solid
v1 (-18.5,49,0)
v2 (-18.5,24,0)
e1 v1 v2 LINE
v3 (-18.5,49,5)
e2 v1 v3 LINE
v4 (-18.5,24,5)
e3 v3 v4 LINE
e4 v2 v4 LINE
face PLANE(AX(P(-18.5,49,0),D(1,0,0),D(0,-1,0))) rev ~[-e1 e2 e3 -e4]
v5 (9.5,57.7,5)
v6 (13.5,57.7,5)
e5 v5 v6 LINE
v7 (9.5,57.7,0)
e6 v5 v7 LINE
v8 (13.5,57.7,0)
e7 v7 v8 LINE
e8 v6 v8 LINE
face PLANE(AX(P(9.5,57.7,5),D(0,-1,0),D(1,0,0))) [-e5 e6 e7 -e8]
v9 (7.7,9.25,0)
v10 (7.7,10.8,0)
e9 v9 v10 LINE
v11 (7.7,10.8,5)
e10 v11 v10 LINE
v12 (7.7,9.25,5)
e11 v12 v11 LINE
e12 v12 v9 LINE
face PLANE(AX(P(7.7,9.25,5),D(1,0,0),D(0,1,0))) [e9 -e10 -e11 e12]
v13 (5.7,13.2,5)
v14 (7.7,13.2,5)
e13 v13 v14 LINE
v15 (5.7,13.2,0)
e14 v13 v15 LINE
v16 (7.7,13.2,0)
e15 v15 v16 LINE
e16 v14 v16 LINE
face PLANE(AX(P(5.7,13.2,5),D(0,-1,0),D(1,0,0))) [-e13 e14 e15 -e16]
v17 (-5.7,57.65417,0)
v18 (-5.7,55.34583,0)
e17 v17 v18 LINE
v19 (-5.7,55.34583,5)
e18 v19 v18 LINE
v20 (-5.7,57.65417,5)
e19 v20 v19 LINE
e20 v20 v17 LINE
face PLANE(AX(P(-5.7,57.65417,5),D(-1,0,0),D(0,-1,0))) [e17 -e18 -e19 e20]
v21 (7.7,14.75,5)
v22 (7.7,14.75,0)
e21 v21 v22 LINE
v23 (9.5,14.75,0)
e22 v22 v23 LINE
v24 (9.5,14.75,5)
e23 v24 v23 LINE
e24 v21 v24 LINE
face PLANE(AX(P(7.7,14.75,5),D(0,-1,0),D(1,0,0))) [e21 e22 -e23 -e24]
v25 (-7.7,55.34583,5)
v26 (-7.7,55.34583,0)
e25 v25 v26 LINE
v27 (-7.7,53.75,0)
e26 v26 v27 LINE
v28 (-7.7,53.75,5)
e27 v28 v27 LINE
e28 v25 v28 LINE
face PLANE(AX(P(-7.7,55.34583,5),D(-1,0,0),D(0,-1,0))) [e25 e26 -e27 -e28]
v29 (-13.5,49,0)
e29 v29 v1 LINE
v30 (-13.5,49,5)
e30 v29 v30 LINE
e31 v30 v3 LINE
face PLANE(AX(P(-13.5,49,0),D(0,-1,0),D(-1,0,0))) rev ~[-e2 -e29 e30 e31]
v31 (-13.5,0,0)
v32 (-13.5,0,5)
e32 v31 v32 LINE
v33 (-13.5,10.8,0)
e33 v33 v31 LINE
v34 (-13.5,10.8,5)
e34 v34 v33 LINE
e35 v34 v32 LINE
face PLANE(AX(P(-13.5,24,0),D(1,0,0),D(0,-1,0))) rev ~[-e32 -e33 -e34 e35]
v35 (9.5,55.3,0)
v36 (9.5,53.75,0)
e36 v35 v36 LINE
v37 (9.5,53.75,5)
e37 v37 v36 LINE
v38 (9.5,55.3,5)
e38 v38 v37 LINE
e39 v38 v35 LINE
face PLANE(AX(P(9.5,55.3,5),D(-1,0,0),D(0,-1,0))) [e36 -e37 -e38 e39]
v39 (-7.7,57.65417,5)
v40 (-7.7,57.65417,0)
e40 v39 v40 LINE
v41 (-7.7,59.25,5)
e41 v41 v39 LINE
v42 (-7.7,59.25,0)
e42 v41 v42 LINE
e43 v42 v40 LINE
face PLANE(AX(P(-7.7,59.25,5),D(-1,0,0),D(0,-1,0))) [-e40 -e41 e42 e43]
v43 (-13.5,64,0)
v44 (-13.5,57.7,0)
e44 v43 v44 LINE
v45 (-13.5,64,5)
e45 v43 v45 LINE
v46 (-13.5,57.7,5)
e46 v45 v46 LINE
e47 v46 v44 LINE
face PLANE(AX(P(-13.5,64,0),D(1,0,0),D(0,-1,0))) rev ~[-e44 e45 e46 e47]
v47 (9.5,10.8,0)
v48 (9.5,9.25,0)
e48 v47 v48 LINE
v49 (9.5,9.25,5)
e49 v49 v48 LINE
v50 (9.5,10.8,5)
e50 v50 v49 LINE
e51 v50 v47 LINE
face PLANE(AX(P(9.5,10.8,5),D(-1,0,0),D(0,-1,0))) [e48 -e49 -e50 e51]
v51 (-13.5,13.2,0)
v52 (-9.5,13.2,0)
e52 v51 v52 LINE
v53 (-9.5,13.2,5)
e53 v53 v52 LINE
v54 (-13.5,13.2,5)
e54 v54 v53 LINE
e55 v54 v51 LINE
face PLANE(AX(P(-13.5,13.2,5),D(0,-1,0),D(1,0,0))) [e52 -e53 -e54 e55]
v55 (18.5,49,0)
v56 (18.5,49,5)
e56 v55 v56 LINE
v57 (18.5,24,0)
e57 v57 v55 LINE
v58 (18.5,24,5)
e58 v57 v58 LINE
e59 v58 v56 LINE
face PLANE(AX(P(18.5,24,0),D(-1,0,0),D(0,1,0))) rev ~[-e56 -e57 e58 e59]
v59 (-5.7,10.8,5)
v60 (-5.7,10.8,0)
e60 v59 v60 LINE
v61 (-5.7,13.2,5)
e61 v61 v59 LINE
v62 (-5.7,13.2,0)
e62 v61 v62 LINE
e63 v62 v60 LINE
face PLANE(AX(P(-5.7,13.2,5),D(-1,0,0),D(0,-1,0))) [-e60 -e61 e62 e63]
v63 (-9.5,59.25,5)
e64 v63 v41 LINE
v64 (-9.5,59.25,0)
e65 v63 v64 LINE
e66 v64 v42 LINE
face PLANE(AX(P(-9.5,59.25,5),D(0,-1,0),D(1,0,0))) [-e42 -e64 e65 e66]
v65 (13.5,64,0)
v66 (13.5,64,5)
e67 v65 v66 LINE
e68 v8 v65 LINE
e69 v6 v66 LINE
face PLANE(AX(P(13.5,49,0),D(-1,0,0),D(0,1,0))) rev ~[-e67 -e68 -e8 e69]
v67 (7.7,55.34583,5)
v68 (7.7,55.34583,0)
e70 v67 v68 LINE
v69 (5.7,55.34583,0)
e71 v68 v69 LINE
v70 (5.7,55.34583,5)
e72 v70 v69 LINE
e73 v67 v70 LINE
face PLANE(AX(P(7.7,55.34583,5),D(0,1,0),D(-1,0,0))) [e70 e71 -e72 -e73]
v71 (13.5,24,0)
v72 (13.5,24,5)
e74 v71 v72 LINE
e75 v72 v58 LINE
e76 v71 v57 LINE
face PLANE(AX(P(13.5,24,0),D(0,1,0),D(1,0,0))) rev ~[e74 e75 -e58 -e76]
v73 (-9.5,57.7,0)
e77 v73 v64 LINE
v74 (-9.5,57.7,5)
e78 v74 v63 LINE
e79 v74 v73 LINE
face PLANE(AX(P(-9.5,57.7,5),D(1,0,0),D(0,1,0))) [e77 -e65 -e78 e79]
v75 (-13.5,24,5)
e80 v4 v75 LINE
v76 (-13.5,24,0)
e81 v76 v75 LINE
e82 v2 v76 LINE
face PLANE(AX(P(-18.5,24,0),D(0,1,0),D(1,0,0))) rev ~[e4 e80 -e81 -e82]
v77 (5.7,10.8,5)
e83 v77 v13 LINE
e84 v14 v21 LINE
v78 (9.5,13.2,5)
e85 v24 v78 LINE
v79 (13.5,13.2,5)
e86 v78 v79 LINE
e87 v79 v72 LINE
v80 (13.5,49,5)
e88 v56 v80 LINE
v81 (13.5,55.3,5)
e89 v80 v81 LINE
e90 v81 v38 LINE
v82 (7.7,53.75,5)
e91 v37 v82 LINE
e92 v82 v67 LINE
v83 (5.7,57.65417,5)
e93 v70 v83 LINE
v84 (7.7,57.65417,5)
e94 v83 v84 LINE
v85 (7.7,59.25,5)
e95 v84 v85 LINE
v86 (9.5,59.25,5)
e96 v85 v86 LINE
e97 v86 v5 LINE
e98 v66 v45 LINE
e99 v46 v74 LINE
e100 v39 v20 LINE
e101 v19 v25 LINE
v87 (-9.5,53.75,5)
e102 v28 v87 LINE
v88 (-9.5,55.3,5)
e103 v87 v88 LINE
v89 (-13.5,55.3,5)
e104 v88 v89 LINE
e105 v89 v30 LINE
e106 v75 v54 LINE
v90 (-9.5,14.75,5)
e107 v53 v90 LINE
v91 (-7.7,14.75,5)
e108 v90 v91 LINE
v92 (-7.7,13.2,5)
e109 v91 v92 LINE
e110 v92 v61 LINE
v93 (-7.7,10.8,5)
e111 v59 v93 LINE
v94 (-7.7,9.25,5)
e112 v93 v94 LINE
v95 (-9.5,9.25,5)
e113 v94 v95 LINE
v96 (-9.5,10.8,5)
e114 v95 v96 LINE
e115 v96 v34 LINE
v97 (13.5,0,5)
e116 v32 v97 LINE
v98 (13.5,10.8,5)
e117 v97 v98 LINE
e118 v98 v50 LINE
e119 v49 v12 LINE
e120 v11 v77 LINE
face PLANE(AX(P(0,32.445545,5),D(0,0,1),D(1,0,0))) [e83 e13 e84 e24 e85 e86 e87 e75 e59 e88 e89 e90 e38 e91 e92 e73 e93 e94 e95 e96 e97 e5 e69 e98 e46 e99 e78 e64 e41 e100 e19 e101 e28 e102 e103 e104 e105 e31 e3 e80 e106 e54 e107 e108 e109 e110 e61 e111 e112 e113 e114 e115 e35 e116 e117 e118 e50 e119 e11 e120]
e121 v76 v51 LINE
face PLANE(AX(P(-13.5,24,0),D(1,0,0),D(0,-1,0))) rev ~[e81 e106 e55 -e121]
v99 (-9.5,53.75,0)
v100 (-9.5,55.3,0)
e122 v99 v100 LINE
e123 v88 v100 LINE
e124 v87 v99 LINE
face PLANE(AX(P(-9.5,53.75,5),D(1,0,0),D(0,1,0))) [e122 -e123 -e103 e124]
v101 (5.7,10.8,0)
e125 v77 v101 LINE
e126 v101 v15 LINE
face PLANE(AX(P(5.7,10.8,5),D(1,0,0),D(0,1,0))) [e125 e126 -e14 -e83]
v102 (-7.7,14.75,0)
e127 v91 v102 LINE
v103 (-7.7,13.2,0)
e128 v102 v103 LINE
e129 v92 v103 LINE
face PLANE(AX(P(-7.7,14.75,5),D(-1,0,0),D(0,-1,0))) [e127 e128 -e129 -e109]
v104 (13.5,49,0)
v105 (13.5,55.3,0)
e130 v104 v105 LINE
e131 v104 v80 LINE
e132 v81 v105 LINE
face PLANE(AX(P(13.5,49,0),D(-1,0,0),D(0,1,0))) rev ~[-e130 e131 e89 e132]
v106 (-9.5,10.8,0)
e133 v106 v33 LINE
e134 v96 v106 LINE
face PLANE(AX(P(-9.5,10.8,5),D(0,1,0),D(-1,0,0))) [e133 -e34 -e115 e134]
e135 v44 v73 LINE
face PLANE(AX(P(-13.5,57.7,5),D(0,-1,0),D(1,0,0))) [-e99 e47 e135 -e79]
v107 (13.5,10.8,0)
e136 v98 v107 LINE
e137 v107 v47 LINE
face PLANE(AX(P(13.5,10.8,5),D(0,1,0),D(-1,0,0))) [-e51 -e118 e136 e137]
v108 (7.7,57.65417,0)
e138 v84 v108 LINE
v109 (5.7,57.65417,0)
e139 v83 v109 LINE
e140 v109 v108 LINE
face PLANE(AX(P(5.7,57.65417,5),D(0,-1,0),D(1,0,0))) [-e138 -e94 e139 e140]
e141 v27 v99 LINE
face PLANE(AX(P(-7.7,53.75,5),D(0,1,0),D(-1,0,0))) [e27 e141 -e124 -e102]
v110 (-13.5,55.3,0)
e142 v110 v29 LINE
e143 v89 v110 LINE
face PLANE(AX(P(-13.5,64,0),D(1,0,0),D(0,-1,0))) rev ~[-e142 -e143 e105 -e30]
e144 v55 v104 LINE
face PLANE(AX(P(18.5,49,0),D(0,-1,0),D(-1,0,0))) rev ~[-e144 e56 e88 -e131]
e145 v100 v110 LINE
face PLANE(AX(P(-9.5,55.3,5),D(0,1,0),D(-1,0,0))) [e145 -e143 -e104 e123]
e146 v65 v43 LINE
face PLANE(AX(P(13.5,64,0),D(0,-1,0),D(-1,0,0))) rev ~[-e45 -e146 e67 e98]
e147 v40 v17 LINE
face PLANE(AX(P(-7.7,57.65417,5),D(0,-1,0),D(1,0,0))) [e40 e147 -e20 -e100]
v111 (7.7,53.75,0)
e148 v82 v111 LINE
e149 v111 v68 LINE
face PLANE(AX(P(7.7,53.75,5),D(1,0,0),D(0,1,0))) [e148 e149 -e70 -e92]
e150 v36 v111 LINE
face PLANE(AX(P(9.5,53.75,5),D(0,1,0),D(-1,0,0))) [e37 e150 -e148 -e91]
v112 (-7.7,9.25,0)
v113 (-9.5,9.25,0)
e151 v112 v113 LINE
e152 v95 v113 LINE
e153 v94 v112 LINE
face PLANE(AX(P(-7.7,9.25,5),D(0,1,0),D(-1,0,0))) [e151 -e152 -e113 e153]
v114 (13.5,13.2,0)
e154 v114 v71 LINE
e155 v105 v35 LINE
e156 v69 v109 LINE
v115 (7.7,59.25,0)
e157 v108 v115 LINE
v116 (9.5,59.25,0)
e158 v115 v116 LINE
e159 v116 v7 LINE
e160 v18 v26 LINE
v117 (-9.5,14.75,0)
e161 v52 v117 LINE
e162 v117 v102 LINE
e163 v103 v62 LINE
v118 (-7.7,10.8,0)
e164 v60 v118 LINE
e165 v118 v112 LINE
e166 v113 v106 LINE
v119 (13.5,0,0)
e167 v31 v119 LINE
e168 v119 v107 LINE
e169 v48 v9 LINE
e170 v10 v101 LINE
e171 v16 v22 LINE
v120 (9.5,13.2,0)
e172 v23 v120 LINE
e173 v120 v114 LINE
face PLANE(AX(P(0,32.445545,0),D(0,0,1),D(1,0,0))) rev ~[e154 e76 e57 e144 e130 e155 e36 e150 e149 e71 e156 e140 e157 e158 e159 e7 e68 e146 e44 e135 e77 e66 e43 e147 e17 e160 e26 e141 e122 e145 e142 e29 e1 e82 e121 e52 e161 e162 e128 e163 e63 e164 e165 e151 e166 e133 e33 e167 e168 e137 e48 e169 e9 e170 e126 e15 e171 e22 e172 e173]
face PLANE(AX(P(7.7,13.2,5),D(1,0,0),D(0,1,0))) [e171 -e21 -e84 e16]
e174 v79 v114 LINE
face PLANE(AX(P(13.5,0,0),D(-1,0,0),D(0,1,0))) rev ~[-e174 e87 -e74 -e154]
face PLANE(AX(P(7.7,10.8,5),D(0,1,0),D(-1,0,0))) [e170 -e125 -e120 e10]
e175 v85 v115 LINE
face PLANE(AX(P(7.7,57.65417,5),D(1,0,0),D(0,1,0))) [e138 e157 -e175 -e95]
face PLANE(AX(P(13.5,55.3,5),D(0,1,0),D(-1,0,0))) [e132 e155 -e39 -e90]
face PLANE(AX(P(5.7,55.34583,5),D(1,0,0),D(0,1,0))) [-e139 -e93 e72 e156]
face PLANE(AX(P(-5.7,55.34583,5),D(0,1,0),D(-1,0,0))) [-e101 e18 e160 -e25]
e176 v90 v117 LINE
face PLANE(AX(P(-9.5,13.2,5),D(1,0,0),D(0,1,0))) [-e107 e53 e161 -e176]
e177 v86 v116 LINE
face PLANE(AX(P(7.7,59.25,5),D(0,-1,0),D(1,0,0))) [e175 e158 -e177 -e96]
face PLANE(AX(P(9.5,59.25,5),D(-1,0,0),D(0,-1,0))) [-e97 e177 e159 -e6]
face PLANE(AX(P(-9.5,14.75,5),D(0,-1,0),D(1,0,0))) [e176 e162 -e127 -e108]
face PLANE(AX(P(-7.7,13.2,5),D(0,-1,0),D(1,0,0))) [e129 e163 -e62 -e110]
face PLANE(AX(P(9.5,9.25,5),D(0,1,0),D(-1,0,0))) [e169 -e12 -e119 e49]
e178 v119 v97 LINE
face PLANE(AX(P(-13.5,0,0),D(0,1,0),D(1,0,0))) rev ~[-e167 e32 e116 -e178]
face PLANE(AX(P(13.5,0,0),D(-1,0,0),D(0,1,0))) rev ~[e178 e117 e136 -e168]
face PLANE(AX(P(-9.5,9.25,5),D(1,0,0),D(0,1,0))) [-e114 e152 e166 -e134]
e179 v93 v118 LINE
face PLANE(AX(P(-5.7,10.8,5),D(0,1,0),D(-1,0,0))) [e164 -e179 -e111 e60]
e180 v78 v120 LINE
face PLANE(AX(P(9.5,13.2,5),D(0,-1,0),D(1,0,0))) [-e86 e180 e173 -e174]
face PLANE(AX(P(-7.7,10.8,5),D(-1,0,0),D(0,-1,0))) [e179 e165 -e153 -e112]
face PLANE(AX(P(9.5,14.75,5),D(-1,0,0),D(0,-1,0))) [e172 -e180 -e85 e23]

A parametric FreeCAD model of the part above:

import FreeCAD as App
import Part
import Sketcher

V = App.Vector
Q = App.Units.Quantity


def add_polygon(sketch, points):
    """Adds a closed chain of lines whose ends are joined by coincident constraints."""
    first, n = sketch.GeometryCount, len(points)
    for a, b in zip(points, points[1:] + points[:1]):
        sketch.addGeometry(Part.LineSegment(App.Vector(*a, 0), App.Vector(*b, 0)), False)
    for i in range(n):
        sketch.addConstraint(Sketcher.Constraint("Coincident", first + i, 2, first + (i + 1) % n, 1))

doc = App.newDocument("Part")
body = doc.addObject("PartDesign::Body", "Body")

sketch1 = doc.addObject("Sketcher::SketchObject", "Sketch")
body.addObject(sketch1)
sketch1.AttachmentSupport = (doc.XY_Plane, [""])
sketch1.MapMode = "FlatFace"
add_polygon(sketch1, [(-13.5, 0), (13.5, 0), (13.5, 24), (18.5, 24), (18.5, 49), (13.5, 49), (13.5, 64), (-13.5, 64), (-13.5, 49), (-18.5, 49), (-18.5, 24), (-13.5, 24)])
sketch1.addConstraint(Sketcher.Constraint("Horizontal", 0))
sketch1.addConstraint(Sketcher.Constraint("Vertical", 1))
sketch1.addConstraint(Sketcher.Constraint("Horizontal", 2))
sketch1.addConstraint(Sketcher.Constraint("Vertical", 3))
sketch1.addConstraint(Sketcher.Constraint("Horizontal", 4))
sketch1.addConstraint(Sketcher.Constraint("Vertical", 5))
sketch1.addConstraint(Sketcher.Constraint("Horizontal", 6))
sketch1.addConstraint(Sketcher.Constraint("Vertical", 7))
sketch1.addConstraint(Sketcher.Constraint("Horizontal", 8))
sketch1.addConstraint(Sketcher.Constraint("Vertical", 9))
sketch1.addConstraint(Sketcher.Constraint("Horizontal", 10))
sketch1.addConstraint(Sketcher.Constraint("Vertical", 11))
sketch1.addConstraint(Sketcher.Constraint("Symmetric", 0, 2, 11, 2, -1, 1))
sketch1.addConstraint(Sketcher.Constraint("Symmetric", 4, 2, 7, 2, -2))
sketch1.addConstraint(Sketcher.Constraint("Symmetric", 2, 2, 9, 2, -2))
sketch1.addConstraint(Sketcher.Constraint("Vertical", 1, 2, 4, 2))
sketch1.addConstraint(Sketcher.Constraint("DistanceX", 0, 1, 0, 2, Q("27 mm")))
sketch1.addConstraint(Sketcher.Constraint("DistanceX", 2, 1, 2, 2, Q("5 mm")))
sketch1.addConstraint(Sketcher.Constraint("DistanceY", 1, 1, 1, 2, Q("24 mm")))
sketch1.addConstraint(Sketcher.Constraint("DistanceY", 3, 1, 3, 2, Q("25 mm")))
sketch1.addConstraint(Sketcher.Constraint("DistanceY", 5, 1, 5, 2, Q("15 mm")))
pad1 = doc.addObject("PartDesign::Pad", "Pad")
body.addObject(pad1)
pad1.Profile = sketch1
pad1.Length = 5

sketch2 = doc.addObject("Sketcher::SketchObject", "Sketch001")
body.addObject(sketch2)
sketch2.AttachmentSupport = (doc.XY_Plane, [""])
sketch2.MapMode = "FlatFace"
sketch2.AttachmentOffset = App.Placement(V(0, 0, 5), App.Rotation())
add_polygon(sketch2, [(-13.5, 57.7), (-13.5, 55.3), (-9.5, 55.3), (-9.5, 53.75), (-7.7, 53.75), (-7.7, 55.34583), (-5.7, 55.34583), (-5.7, 57.65417), (-7.7, 57.65417), (-7.7, 59.25), (-9.5, 59.25), (-9.5, 57.7)])
add_polygon(sketch2, [(13.5, 55.3), (13.5, 57.7), (9.5, 57.7), (9.5, 59.25), (7.7, 59.25), (7.7, 57.65417), (5.7, 57.65417), (5.7, 55.34583), (7.7, 55.34583), (7.7, 53.75), (9.5, 53.75), (9.5, 55.3)])
add_polygon(sketch2, [(-13.5, 13.2), (-13.5, 10.8), (-9.5, 10.8), (-9.5, 9.25), (-7.7, 9.25), (-7.7, 10.8), (-5.7, 10.8), (-5.7, 13.2), (-7.7, 13.2), (-7.7, 14.75), (-9.5, 14.75), (-9.5, 13.2)])
add_polygon(sketch2, [(9.5, 10.8), (13.5, 10.8), (13.5, 13.2), (9.5, 13.2), (9.5, 14.75), (7.7, 14.75), (7.7, 13.2), (5.7, 13.2), (5.7, 10.8), (7.7, 10.8), (7.7, 9.25), (9.5, 9.25)])
sketch2.addConstraint(Sketcher.Constraint("Vertical", 0))
sketch2.addConstraint(Sketcher.Constraint("Horizontal", 1))
sketch2.addConstraint(Sketcher.Constraint("Vertical", 2))
sketch2.addConstraint(Sketcher.Constraint("Horizontal", 3))
sketch2.addConstraint(Sketcher.Constraint("Vertical", 4))
sketch2.addConstraint(Sketcher.Constraint("Horizontal", 5))
sketch2.addConstraint(Sketcher.Constraint("Vertical", 6))
sketch2.addConstraint(Sketcher.Constraint("Horizontal", 7))
sketch2.addConstraint(Sketcher.Constraint("Vertical", 8))
sketch2.addConstraint(Sketcher.Constraint("Horizontal", 9))
sketch2.addConstraint(Sketcher.Constraint("Vertical", 10))
sketch2.addConstraint(Sketcher.Constraint("Horizontal", 11))
sketch2.addConstraint(Sketcher.Constraint("Vertical", 12))
sketch2.addConstraint(Sketcher.Constraint("Horizontal", 13))
sketch2.addConstraint(Sketcher.Constraint("Vertical", 14))
sketch2.addConstraint(Sketcher.Constraint("Horizontal", 15))
sketch2.addConstraint(Sketcher.Constraint("Vertical", 16))
sketch2.addConstraint(Sketcher.Constraint("Horizontal", 17))
sketch2.addConstraint(Sketcher.Constraint("Vertical", 18))
sketch2.addConstraint(Sketcher.Constraint("Horizontal", 19))
sketch2.addConstraint(Sketcher.Constraint("Vertical", 20))
sketch2.addConstraint(Sketcher.Constraint("Horizontal", 21))
sketch2.addConstraint(Sketcher.Constraint("Vertical", 22))
sketch2.addConstraint(Sketcher.Constraint("Horizontal", 23))
sketch2.addConstraint(Sketcher.Constraint("Vertical", 24))
sketch2.addConstraint(Sketcher.Constraint("Horizontal", 25))
sketch2.addConstraint(Sketcher.Constraint("Vertical", 26))
sketch2.addConstraint(Sketcher.Constraint("Horizontal", 27))
sketch2.addConstraint(Sketcher.Constraint("Vertical", 28))
sketch2.addConstraint(Sketcher.Constraint("Horizontal", 29))
sketch2.addConstraint(Sketcher.Constraint("Vertical", 30))
sketch2.addConstraint(Sketcher.Constraint("Horizontal", 31))
sketch2.addConstraint(Sketcher.Constraint("Vertical", 32))
sketch2.addConstraint(Sketcher.Constraint("Horizontal", 33))
sketch2.addConstraint(Sketcher.Constraint("Vertical", 34))
sketch2.addConstraint(Sketcher.Constraint("Horizontal", 35))
sketch2.addConstraint(Sketcher.Constraint("Horizontal", 36))
sketch2.addConstraint(Sketcher.Constraint("Vertical", 37))
sketch2.addConstraint(Sketcher.Constraint("Horizontal", 38))
sketch2.addConstraint(Sketcher.Constraint("Vertical", 39))
sketch2.addConstraint(Sketcher.Constraint("Horizontal", 40))
sketch2.addConstraint(Sketcher.Constraint("Vertical", 41))
sketch2.addConstraint(Sketcher.Constraint("Horizontal", 42))
sketch2.addConstraint(Sketcher.Constraint("Vertical", 43))
sketch2.addConstraint(Sketcher.Constraint("Horizontal", 44))
sketch2.addConstraint(Sketcher.Constraint("Vertical", 45))
sketch2.addConstraint(Sketcher.Constraint("Horizontal", 46))
sketch2.addConstraint(Sketcher.Constraint("Vertical", 47))
sketch2.addConstraint(Sketcher.Constraint("Symmetric", 11, 2, 12, 2, -2))
sketch2.addConstraint(Sketcher.Constraint("Symmetric", 9, 2, 14, 2, -2))
sketch2.addConstraint(Sketcher.Constraint("Symmetric", 7, 2, 16, 2, -2))
sketch2.addConstraint(Sketcher.Constraint("Symmetric", 5, 2, 18, 2, -2))
sketch2.addConstraint(Sketcher.Constraint("Symmetric", 3, 2, 20, 2, -2))
sketch2.addConstraint(Sketcher.Constraint("Symmetric", 1, 2, 22, 2, -2))
sketch2.addConstraint(Sketcher.Constraint("Symmetric", 24, 2, 36, 2, -2))
sketch2.addConstraint(Sketcher.Constraint("Symmetric", 34, 2, 38, 2, -2))
sketch2.addConstraint(Sketcher.Constraint("Symmetric", 32, 2, 40, 2, -2))
sketch2.addConstraint(Sketcher.Constraint("Symmetric", 30, 2, 42, 2, -2))
sketch2.addConstraint(Sketcher.Constraint("Symmetric", 28, 2, 44, 2, -2))
sketch2.addConstraint(Sketcher.Constraint("Symmetric", 26, 2, 46, 2, -2))
sketch2.addConstraint(Sketcher.Constraint("Horizontal", 25, 2, 28, 2))
sketch2.addConstraint(Sketcher.Constraint("Horizontal", 31, 2, 34, 2))
sketch2.addConstraint(Sketcher.Constraint("Vertical", 4, 2, 7, 2))
sketch2.addConstraint(Sketcher.Constraint("Vertical", 2, 2, 9, 2))
sketch2.addConstraint(Sketcher.Constraint("Vertical", 11, 2, 24, 2))
sketch2.addConstraint(Sketcher.Constraint("Vertical", 10, 2, 25, 2))
sketch2.addConstraint(Sketcher.Constraint("Vertical", 8, 2, 27, 2))
sketch2.addConstraint(Sketcher.Constraint("Vertical", 6, 2, 29, 2))
sketch2.addConstraint(Sketcher.Constraint("Vertical", 28, 2, 31, 2))
sketch2.addConstraint(Sketcher.Constraint("Vertical", 26, 2, 33, 2))
sketch2.addConstraint(Sketcher.Constraint("Equal", 4, 8))
sketch2.addConstraint(Sketcher.Constraint("Equal", 2, 10))
sketch2.addConstraint(Sketcher.Constraint("Equal", 12, 24))
sketch2.addConstraint(Sketcher.Constraint("Equal", 22, 26))
sketch2.addConstraint(Sketcher.Constraint("Equal", 28, 32))
sketch2.addConstraint(Sketcher.Constraint("DistanceX", 1, 1, 1, 2, Q("4 mm")))
sketch2.addConstraint(Sketcher.Constraint("DistanceX", 5, 1, 5, 2, Q("2 mm")))
sketch2.addConstraint(Sketcher.Constraint("DistanceX", 3, 1, 3, 2, Q("1.8 mm")))
sketch2.addConstraint(Sketcher.Constraint("DistanceY", 0, 2, 0, 1, Q("2.4 mm")))
sketch2.addConstraint(Sketcher.Constraint("DistanceY", 2, 2, 2, 1, Q("1.55 mm")))
sketch2.addConstraint(Sketcher.Constraint("DistanceX", 0, 2, -1, 1, Q("13.5 mm")))
sketch2.addConstraint(Sketcher.Constraint("DistanceY", -1, 1, 0, 2, Q("55.3 mm")))
sketch2.addConstraint(Sketcher.Constraint("DistanceY", -1, 1, 24, 2, Q("10.8 mm")))
sketch2.addConstraint(Sketcher.Constraint("DistanceY", 4, 1, 4, 2, Q("1.59583 mm")))
pocket1 = doc.addObject("PartDesign::Pocket", "Pocket")
body.addObject(pocket1)
pocket1.Profile = sketch2
pocket1.Type = "ThroughAll"

doc.recompute()
